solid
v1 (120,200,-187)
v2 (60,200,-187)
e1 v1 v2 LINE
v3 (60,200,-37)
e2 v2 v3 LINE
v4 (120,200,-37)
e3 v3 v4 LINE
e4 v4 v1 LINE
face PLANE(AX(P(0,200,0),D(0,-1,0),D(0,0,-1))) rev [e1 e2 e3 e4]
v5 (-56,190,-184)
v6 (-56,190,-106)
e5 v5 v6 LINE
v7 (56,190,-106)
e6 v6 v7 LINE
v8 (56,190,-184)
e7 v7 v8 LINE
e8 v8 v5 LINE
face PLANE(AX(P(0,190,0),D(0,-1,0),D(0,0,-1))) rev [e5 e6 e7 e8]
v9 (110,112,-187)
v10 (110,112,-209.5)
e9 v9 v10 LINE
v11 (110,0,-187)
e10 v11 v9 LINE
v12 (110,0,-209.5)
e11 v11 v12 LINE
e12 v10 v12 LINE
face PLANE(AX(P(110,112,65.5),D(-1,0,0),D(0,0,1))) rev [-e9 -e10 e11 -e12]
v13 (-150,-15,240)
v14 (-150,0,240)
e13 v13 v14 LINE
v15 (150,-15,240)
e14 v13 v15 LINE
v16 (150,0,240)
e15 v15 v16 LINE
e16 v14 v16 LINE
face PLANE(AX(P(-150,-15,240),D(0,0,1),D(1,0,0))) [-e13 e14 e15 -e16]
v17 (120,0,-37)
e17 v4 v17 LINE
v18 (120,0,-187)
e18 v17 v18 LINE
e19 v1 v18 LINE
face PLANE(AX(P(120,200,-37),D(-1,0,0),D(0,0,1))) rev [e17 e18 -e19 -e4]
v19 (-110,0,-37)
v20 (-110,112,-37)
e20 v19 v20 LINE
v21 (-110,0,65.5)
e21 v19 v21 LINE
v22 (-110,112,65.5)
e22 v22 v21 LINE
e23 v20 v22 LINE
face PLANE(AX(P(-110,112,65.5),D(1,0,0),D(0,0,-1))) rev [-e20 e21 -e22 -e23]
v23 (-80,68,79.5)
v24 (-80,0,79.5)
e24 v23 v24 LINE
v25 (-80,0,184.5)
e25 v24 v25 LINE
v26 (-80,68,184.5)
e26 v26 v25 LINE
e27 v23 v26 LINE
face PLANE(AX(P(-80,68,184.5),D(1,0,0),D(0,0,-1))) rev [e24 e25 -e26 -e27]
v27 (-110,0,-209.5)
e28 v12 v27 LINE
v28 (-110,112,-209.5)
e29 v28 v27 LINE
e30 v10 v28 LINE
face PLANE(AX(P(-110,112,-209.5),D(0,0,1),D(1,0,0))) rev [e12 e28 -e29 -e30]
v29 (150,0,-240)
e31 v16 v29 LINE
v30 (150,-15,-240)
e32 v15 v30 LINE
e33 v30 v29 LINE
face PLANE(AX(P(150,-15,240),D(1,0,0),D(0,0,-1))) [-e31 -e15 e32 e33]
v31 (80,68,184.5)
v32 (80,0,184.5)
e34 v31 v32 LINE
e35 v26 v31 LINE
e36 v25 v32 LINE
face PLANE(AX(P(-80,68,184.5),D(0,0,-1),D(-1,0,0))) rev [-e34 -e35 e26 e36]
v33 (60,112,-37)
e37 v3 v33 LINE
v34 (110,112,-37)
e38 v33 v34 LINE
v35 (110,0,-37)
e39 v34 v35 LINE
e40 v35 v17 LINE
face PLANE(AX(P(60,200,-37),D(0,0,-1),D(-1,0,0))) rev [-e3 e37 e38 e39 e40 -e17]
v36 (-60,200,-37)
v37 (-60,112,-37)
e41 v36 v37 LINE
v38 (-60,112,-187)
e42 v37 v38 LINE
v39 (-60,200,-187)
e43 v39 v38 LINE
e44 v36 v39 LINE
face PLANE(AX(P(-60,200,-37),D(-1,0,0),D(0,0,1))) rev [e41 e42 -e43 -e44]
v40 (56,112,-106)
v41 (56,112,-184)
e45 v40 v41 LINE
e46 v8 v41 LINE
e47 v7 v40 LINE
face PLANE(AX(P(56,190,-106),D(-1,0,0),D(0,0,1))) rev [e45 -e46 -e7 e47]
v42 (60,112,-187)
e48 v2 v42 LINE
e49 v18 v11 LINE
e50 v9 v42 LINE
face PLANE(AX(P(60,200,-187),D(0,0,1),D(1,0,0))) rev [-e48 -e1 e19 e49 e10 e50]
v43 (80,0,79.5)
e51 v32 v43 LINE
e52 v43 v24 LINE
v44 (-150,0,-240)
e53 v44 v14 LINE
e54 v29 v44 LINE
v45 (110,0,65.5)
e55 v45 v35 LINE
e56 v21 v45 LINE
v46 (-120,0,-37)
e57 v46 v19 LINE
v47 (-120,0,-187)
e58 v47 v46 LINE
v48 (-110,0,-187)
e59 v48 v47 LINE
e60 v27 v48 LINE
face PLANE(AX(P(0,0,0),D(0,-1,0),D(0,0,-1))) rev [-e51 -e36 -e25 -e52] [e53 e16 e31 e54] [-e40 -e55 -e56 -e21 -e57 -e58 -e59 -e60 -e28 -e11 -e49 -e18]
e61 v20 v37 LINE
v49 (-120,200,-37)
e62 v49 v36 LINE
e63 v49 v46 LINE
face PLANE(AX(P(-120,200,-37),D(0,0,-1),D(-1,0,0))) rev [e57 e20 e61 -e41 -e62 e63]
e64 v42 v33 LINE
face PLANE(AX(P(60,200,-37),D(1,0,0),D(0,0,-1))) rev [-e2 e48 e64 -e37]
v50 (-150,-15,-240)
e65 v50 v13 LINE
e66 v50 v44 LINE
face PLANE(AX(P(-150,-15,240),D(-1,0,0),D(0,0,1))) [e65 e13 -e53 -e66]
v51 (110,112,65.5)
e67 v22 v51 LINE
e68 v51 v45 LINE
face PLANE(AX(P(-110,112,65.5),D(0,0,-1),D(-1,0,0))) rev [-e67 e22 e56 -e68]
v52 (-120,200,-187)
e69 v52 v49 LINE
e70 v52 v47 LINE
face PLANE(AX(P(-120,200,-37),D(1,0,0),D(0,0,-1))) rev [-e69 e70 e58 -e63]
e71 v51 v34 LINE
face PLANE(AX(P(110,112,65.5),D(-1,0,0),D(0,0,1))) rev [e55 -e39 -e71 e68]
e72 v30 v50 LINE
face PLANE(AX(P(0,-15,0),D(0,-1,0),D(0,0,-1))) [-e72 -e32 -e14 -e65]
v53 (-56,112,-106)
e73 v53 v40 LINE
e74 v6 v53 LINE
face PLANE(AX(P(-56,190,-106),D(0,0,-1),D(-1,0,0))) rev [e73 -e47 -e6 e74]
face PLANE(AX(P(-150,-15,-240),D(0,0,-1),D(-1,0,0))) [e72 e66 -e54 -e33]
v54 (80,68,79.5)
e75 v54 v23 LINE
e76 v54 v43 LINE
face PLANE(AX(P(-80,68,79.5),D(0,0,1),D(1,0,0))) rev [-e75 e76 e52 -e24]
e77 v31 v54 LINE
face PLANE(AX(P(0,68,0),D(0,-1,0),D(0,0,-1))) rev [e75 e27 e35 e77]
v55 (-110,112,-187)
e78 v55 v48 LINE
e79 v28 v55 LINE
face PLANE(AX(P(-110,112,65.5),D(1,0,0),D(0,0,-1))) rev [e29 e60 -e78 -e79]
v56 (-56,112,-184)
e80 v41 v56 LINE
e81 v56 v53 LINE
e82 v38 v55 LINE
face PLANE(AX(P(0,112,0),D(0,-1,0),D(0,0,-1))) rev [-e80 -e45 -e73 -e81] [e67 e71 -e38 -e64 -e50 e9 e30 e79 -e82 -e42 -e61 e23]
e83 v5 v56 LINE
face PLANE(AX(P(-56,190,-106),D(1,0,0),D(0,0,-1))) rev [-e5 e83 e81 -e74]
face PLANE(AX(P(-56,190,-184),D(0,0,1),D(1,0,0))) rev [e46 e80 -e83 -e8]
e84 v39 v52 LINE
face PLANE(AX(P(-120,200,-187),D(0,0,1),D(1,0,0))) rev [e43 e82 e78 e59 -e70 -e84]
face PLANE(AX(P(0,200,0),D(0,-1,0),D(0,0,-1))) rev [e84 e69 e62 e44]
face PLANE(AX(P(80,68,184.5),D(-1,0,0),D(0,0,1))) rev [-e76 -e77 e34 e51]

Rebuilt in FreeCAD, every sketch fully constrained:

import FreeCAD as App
import Part
import Sketcher


def add_polygon(sketch, points):
    """Adds a closed chain of lines whose ends are joined by coincident constraints."""
    first, n = sketch.GeometryCount, len(points)
    for a, b in zip(points, points[1:] + points[:1]):
        sketch.addGeometry(Part.LineSegment(App.Vector(*a, 0), App.Vector(*b, 0)), False)
    for i in range(n):
        sketch.addConstraint(Sketcher.Constraint("Coincident", first + i, 2, first + (i + 1) % n, 1))

doc = App.newDocument("Part")
body = doc.addObject("PartDesign::Body", "Body")

# Sketch on XZ plane
sketch1 = doc.addObject("Sketcher::SketchObject", "Sketch")
body.addObject(sketch1)
sketch1.AttachmentSupport = (doc.XZ_Plane, [""])
sketch1.MapMode = "FlatFace"
add_polygon(sketch1, [(-150, -240), (-150, 240), (150, 240), (150, -240)])  # lines 0-3
sketch1.addConstraint(Sketcher.Constraint("Vertical", 0))
sketch1.addConstraint(Sketcher.Constraint("Horizontal", 1))
sketch1.addConstraint(Sketcher.Constraint("Vertical", 2))
sketch1.addConstraint(Sketcher.Constraint("Horizontal", 3))
sketch1.addConstraint(Sketcher.Constraint("Symmetric", 0, 2, 2, 2, -1, 1))
sketch1.addConstraint(Sketcher.Constraint("DistanceX", 1, 1, 1, 2, 300.0))
sketch1.addConstraint(Sketcher.Constraint("DistanceY", 0, 1, 0, 2, 480.0))
pad1 = doc.addObject("PartDesign::Pad", "Pad")
body.addObject(pad1)
pad1.Profile = sketch1
pad1.Length = 15

# Sketch on XZ plane
sketch2 = doc.addObject("Sketcher::SketchObject", "Sketch001")
body.addObject(sketch2)
sketch2.AttachmentSupport = (doc.XZ_Plane, [""])
sketch2.MapMode = "FlatFace"
add_polygon(sketch2, [(-110, -209.5), (-110, 65.5), (110, 65.5), (110, -209.5)])  # lines 0-3
sketch2.addConstraint(Sketcher.Constraint("Vertical", 0))
sketch2.addConstraint(Sketcher.Constraint("Horizontal", 1))
sketch2.addConstraint(Sketcher.Constraint("Vertical", 2))
sketch2.addConstraint(Sketcher.Constraint("Horizontal", 3))
sketch2.addConstraint(Sketcher.Constraint("DistanceX", 1, 1, 1, 2, 220.0))
sketch2.addConstraint(Sketcher.Constraint("DistanceY", 0, 1, 0, 2, 275.0))
sketch2.addConstraint(Sketcher.Constraint("DistanceX", 0, 2, -1, 1, 110.0))
sketch2.addConstraint(Sketcher.Constraint("DistanceY", -1, 1, 0, 2, 65.5))
pad2 = doc.addObject("PartDesign::Pad", "Pad001")
body.addObject(pad2)
pad2.Profile = sketch2
pad2.Length = 112
pad2.Reversed = True

# Sketch on XZ plane
sketch3 = doc.addObject("Sketcher::SketchObject", "Sketch002")
body.addObject(sketch3)
sketch3.AttachmentSupport = (doc.XZ_Plane, [""])
sketch3.MapMode = "FlatFace"
add_polygon(sketch3, [(-80, 79.5), (-80, 184.5), (80, 184.5), (80, 79.5)])  # lines 0-3
sketch3.addConstraint(Sketcher.Constraint("Vertical", 0))
sketch3.addConstraint(Sketcher.Constraint("Horizontal", 1))
sketch3.addConstraint(Sketcher.Constraint("Vertical", 2))
sketch3.addConstraint(Sketcher.Constraint("Horizontal", 3))
sketch3.addConstraint(Sketcher.Constraint("DistanceX", 1, 1, 1, 2, 160.0))
sketch3.addConstraint(Sketcher.Constraint("DistanceY", 0, 1, 0, 2, 105.0))
sketch3.addConstraint(Sketcher.Constraint("DistanceX", 0, 2, -1, 1, 80.0))
sketch3.addConstraint(Sketcher.Constraint("DistanceY", -1, 1, 0, 2, 184.5))
pad3 = doc.addObject("PartDesign::Pad", "Pad002")
body.addObject(pad3)
pad3.Profile = sketch3
pad3.Length = 68
pad3.Reversed = True

# Sketch on XZ plane
sketch4 = doc.addObject("Sketcher::SketchObject", "Sketch003")
body.addObject(sketch4)
sketch4.AttachmentSupport = (doc.XZ_Plane, [""])
sketch4.MapMode = "FlatFace"
add_polygon(sketch4, [(-120, -187), (-120, -37), (-60, -37), (-60, -187)])  # lines 0-3
sketch4.addConstraint(Sketcher.Constraint("Vertical", 0))
sketch4.addConstraint(Sketcher.Constraint("Horizontal", 1))
sketch4.addConstraint(Sketcher.Constraint("Vertical", 2))
sketch4.addConstraint(Sketcher.Constraint("Horizontal", 3))
sketch4.addConstraint(Sketcher.Constraint("DistanceX", 1, 1, 1, 2, 60.0))
sketch4.addConstraint(Sketcher.Constraint("DistanceY", 0, 1, 0, 2, 150.0))
sketch4.addConstraint(Sketcher.Constraint("DistanceX", 0, 2, -1, 1, 120.0))
sketch4.addConstraint(Sketcher.Constraint("DistanceY", 0, 2, -1, 1, 37.0))
pad4 = doc.addObject("PartDesign::Pad", "Pad003")
body.addObject(pad4)
pad4.Profile = sketch4
pad4.Length = 200
pad4.Reversed = True

# Sketch on XZ plane
sketch5 = doc.addObject("Sketcher::SketchObject", "Sketch004")
body.addObject(sketch5)
sketch5.AttachmentSupport = (doc.XZ_Plane, [""])
sketch5.MapMode = "FlatFace"
add_polygon(sketch5, [(60, -187), (60, -37), (120, -37), (120, -187)])  # lines 0-3
sketch5.addConstraint(Sketcher.Constraint("Vertical", 0))
sketch5.addConstraint(Sketcher.Constraint("Horizontal", 1))
sketch5.addConstraint(Sketcher.Constraint("Vertical", 2))
sketch5.addConstraint(Sketcher.Constraint("Horizontal", 3))
sketch5.addConstraint(Sketcher.Constraint("DistanceX", 1, 1, 1, 2, 60.0))
sketch5.addConstraint(Sketcher.Constraint("DistanceY", 0, 1, 0, 2, 150.0))
sketch5.addConstraint(Sketcher.Constraint("DistanceX", -1, 1, 0, 2, 60.0))
sketch5.addConstraint(Sketcher.Constraint("DistanceY", 0, 2, -1, 1, 37.0))
pad5 = doc.addObject("PartDesign::Pad", "Pad004")
body.addObject(pad5)
pad5.Profile = sketch5
pad5.Length = 200
pad5.Reversed = True

# Sketch on XZ plane
sketch6 = doc.addObject("Sketcher::SketchObject", "Sketch005")
body.addObject(sketch6)
sketch6.AttachmentSupport = (doc.XZ_Plane, [""])
sketch6.MapMode = "FlatFace"
add_polygon(sketch6, [(-56, -184), (-56, -106), (56, -106), (56, -184)])  # lines 0-3
sketch6.addConstraint(Sketcher.Constraint("Vertical", 0))
sketch6.addConstraint(Sketcher.Constraint("Horizontal", 1))
sketch6.addConstraint(Sketcher.Constraint("Vertical", 2))
sketch6.addConstraint(Sketcher.Constraint("Horizontal", 3))
sketch6.addConstraint(Sketcher.Constraint("DistanceX", 1, 1, 1, 2, 112.0))
sketch6.addConstraint(Sketcher.Constraint("DistanceY", 0, 1, 0, 2, 78.0))
sketch6.addConstraint(Sketcher.Constraint("DistanceX", 0, 2, -1, 1, 56.0))
sketch6.addConstraint(Sketcher.Constraint("DistanceY", 0, 2, -1, 1, 106.0))
pad6 = doc.addObject("PartDesign::Pad", "Pad005")
body.addObject(pad6)
pad6.Profile = sketch6
pad6.Length = 190
pad6.Reversed = True

doc.recompute()
